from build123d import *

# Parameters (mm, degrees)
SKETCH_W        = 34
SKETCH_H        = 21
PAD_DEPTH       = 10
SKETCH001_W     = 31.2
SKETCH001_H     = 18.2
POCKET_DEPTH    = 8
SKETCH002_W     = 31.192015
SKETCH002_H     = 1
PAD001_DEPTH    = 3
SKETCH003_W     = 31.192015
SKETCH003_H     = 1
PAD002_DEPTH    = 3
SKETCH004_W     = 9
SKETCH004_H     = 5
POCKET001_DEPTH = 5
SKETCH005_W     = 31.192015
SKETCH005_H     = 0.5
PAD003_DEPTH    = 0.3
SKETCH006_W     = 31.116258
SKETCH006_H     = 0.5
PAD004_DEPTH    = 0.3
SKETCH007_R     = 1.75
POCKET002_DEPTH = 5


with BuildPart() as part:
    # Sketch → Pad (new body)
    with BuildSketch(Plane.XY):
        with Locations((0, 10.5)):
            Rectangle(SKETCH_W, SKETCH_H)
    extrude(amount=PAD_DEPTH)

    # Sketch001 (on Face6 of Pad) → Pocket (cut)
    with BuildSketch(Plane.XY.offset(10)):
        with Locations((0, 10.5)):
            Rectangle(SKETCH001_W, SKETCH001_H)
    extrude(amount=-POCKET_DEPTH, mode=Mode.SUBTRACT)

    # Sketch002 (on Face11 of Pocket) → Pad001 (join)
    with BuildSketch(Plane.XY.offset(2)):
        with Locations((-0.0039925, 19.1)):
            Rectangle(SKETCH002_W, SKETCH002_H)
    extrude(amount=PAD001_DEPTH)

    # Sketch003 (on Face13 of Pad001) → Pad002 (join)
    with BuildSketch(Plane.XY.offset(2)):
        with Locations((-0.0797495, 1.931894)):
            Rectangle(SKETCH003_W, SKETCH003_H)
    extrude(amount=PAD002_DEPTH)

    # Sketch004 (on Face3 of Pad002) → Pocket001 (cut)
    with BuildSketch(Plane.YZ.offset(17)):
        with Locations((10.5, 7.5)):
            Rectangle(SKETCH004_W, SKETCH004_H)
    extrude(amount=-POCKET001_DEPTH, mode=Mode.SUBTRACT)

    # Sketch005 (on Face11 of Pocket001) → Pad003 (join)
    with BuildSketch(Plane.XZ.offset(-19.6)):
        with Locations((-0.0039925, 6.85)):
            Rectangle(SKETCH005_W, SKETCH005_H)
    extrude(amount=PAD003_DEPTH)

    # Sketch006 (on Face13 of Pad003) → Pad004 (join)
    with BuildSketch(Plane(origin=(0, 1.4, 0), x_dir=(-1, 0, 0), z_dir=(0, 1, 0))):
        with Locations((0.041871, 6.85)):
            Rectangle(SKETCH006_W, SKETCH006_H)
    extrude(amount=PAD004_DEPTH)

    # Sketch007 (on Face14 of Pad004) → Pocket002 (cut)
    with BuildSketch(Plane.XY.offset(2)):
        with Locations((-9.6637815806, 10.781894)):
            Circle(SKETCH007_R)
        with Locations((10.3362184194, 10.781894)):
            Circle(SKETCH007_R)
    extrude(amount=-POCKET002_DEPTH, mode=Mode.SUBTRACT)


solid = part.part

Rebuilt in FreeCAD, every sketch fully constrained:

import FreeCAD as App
import Part
import Sketcher
from FreeCAD import Vector
Q = App.Units.Quantity

doc = App.newDocument("Part")
body = doc.addObject("PartDesign::Body", "Body")

sketch1 = body.newObject("Sketcher::SketchObject", "Sketch")
sketch1.AttachmentSupport = (doc.getObject("XY_Plane"), [""])
sketch1.MapMode = "FlatFace"
sketch1.addGeometry([
    Part.LineSegment(Vector(-17, 21, 0), Vector(-17, 0, 0)),
    Part.LineSegment(Vector(-17, 0, 0), Vector(17, 0, 0)),
    Part.LineSegment(Vector(17, 0, 0), Vector(17, 21, 0)),
    Part.LineSegment(Vector(17, 21, 0), Vector(-17, 21, 0)),
], False)
sketch1.addConstraint([
    Sketcher.Constraint("Coincident", 0, 2, 1, 1),
    Sketcher.Constraint("Coincident", 1, 2, 2, 1),
    Sketcher.Constraint("Coincident", 2, 2, 3, 1),
    Sketcher.Constraint("Coincident", 3, 2, 0, 1),
    Sketcher.Constraint("Vertical", 0),
    Sketcher.Constraint("Horizontal", 1),
    Sketcher.Constraint("Vertical", 2),
    Sketcher.Constraint("Horizontal", 3),
    Sketcher.Constraint("Symmetric", 0, 2, 1, 2, -1, 1),
    Sketcher.Constraint("DistanceX", 1, 1, 1, 2, Q("34 mm")),
    Sketcher.Constraint("DistanceY", 0, 2, 0, 1, Q("21 mm")),
])
pad1 = body.newObject("PartDesign::Pad", "Pad")
pad1.Profile = sketch1
pad1.Length = 10

sketch2 = body.newObject("Sketcher::SketchObject", "Sketch001")
sketch2.AttachmentSupport = (doc.getObject("XY_Plane"), [""])
sketch2.MapMode = "FlatFace"
sketch2.AttachmentOffset = App.Placement(Vector(0, 0, 10), App.Rotation())
sketch2.addGeometry([
    Part.LineSegment(Vector(-16, 20, 0), Vector(-16, 1, 0)),
    Part.LineSegment(Vector(-16, 1, 0), Vector(16, 1, 0)),
    Part.LineSegment(Vector(16, 1, 0), Vector(16, 20, 0)),
    Part.LineSegment(Vector(16, 20, 0), Vector(-16, 20, 0)),
], False)
sketch2.addConstraint([
    Sketcher.Constraint("Coincident", 0, 2, 1, 1),
    Sketcher.Constraint("Coincident", 1, 2, 2, 1),
    Sketcher.Constraint("Coincident", 2, 2, 3, 1),
    Sketcher.Constraint("Coincident", 3, 2, 0, 1),
    Sketcher.Constraint("Vertical", 0),
    Sketcher.Constraint("Horizontal", 1),
    Sketcher.Constraint("Vertical", 2),
    Sketcher.Constraint("Horizontal", 3),
    Sketcher.Constraint("DistanceX", 1, 1, 1, 2, Q("31.2 mm")),
    Sketcher.Constraint("DistanceY", 0, 2, 0, 1, Q("18.2 mm")),
    Sketcher.Constraint("DistanceX", 0, 2, -1, 1, Q("15.6 mm")),
    Sketcher.Constraint("DistanceY", -1, 1, 0, 2, Q("1.4 mm")),
])
pocket1 = body.newObject("PartDesign::Pocket", "Pocket")
pocket1.Profile = sketch2
pocket1.Length = 8

sketch3 = body.newObject("Sketcher::SketchObject", "Sketch002")
sketch3.AttachmentSupport = (doc.getObject("XY_Plane"), [""])
sketch3.MapMode = "FlatFace"
sketch3.AttachmentOffset = App.Placement(Vector(0, 0, 2), App.Rotation())
sketch3.addGeometry([
    Part.LineSegment(Vector(-15.6, 19.6, 0), Vector(-15.6, 18.6, 0)),
    Part.LineSegment(Vector(-15.6, 18.6, 0), Vector(15.6, 18.6, 0)),
    Part.LineSegment(Vector(15.6, 18.6, 0), Vector(15.6, 19.6, 0)),
    Part.LineSegment(Vector(15.6, 19.6, 0), Vector(-15.6, 19.6, 0)),
], False)
sketch3.addConstraint([
    Sketcher.Constraint("Coincident", 0, 2, 1, 1),
    Sketcher.Constraint("Coincident", 1, 2, 2, 1),
    Sketcher.Constraint("Coincident", 2, 2, 3, 1),
    Sketcher.Constraint("Coincident", 3, 2, 0, 1),
    Sketcher.Constraint("Vertical", 0),
    Sketcher.Constraint("Horizontal", 1),
    Sketcher.Constraint("Vertical", 2),
    Sketcher.Constraint("Horizontal", 3),
    Sketcher.Constraint("DistanceY", 0, 2, 0, 1, Q("1 mm")),
    Sketcher.Constraint("DistanceX", 0, 2, -1, 1, Q("15.6 mm")),
    Sketcher.Constraint("DistanceY", -1, 1, 0, 2, Q("18.6 mm")),
    Sketcher.Constraint("DistanceX", 1, 1, 1, 2, Q("31.192015 mm")),
])
pad2 = body.newObject("PartDesign::Pad", "Pad001")
pad2.Profile = sketch3
pad2.Length = 3

sketch4 = body.newObject("Sketcher::SketchObject", "Sketch003")
sketch4.AttachmentSupport = (doc.getObject("XY_Plane"), [""])
sketch4.MapMode = "FlatFace"
sketch4.AttachmentOffset = App.Placement(Vector(0, 0, 2), App.Rotation())
sketch4.addGeometry([
    Part.LineSegment(Vector(-15.7, 2.4, 0), Vector(-15.7, 1.4, 0)),
    Part.LineSegment(Vector(-15.7, 1.4, 0), Vector(15.5, 1.4, 0)),
    Part.LineSegment(Vector(15.5, 1.4, 0), Vector(15.5, 2.4, 0)),
    Part.LineSegment(Vector(15.5, 2.4, 0), Vector(-15.7, 2.4, 0)),
], False)
sketch4.addConstraint([
    Sketcher.Constraint("Coincident", 0, 2, 1, 1),
    Sketcher.Constraint("Coincident", 1, 2, 2, 1),
    Sketcher.Constraint("Coincident", 2, 2, 3, 1),
    Sketcher.Constraint("Coincident", 3, 2, 0, 1),
    Sketcher.Constraint("Vertical", 0),
    Sketcher.Constraint("Horizontal", 1),
    Sketcher.Constraint("Vertical", 2),
    Sketcher.Constraint("Horizontal", 3),
    Sketcher.Constraint("DistanceY", 0, 2, 0, 1, Q("1 mm")),
    Sketcher.Constraint("DistanceX", 1, 1, 1, 2, Q("31.192015 mm")),
    Sketcher.Constraint("DistanceX", 0, 2, -1, 1, Q("15.675757 mm")),
    Sketcher.Constraint("DistanceY", -1, 1, 0, 2, Q("1.431894 mm")),
])
pad3 = body.newObject("PartDesign::Pad", "Pad002")
pad3.Profile = sketch4
pad3.Length = 3

sketch5 = body.newObject("Sketcher::SketchObject", "Sketch004")
sketch5.AttachmentSupport = (doc.getObject("YZ_Plane"), [""])
sketch5.MapMode = "FlatFace"
sketch5.AttachmentOffset = App.Placement(Vector(0, 0, 17), App.Rotation())
sketch5.addGeometry([
    Part.LineSegment(Vector(6, 10, 0), Vector(6, 5, 0)),
    Part.LineSegment(Vector(6, 5, 0), Vector(15, 5, 0)),
    Part.LineSegment(Vector(15, 5, 0), Vector(15, 10, 0)),
    Part.LineSegment(Vector(15, 10, 0), Vector(6, 10, 0)),
], False)
sketch5.addConstraint([
    Sketcher.Constraint("Coincident", 0, 2, 1, 1),
    Sketcher.Constraint("Coincident", 1, 2, 2, 1),
    Sketcher.Constraint("Coincident", 2, 2, 3, 1),
    Sketcher.Constraint("Coincident", 3, 2, 0, 1),
    Sketcher.Constraint("Vertical", 0),
    Sketcher.Constraint("Horizontal", 1),
    Sketcher.Constraint("Vertical", 2),
    Sketcher.Constraint("Horizontal", 3),
    Sketcher.Constraint("DistanceX", 1, 1, 1, 2, Q("9 mm")),
    Sketcher.Constraint("DistanceY", 0, 2, 0, 1, Q("5 mm")),
    Sketcher.Constraint("DistanceX", -1, 1, 0, 2, Q("6 mm")),
    Sketcher.Constraint("DistanceY", -1, 1, 0, 2, Q("5 mm")),
])
pocket2 = body.newObject("PartDesign::Pocket", "Pocket001")
pocket2.Profile = sketch5
pocket2.Length = 5

sketch6 = body.newObject("Sketcher::SketchObject", "Sketch005")
sketch6.AttachmentSupport = (doc.getObject("XZ_Plane"), [""])
sketch6.MapMode = "FlatFace"
sketch6.AttachmentOffset = App.Placement(Vector(0, 0, -19.6), App.Rotation())
sketch6.addGeometry([
    Part.LineSegment(Vector(-15.6, 7.1, 0), Vector(-15.6, 6.6, 0)),
    Part.LineSegment(Vector(-15.6, 6.6, 0), Vector(15.6, 6.6, 0)),
    Part.LineSegment(Vector(15.6, 6.6, 0), Vector(15.6, 7.1, 0)),
    Part.LineSegment(Vector(15.6, 7.1, 0), Vector(-15.6, 7.1, 0)),
], False)
sketch6.addConstraint([
    Sketcher.Constraint("Coincident", 0, 2, 1, 1),
    Sketcher.Constraint("Coincident", 1, 2, 2, 1),
    Sketcher.Constraint("Coincident", 2, 2, 3, 1),
    Sketcher.Constraint("Coincident", 3, 2, 0, 1),
    Sketcher.Constraint("Vertical", 0),
    Sketcher.Constraint("Horizontal", 1),
    Sketcher.Constraint("Vertical", 2),
    Sketcher.Constraint("Horizontal", 3),
    Sketcher.Constraint("DistanceY", 0, 2, 0, 1, Q("0.5 mm")),
    Sketcher.Constraint("DistanceX", 0, 2, -1, 1, Q("15.6 mm")),
    Sketcher.Constraint("DistanceY", -1, 1, 0, 2, Q("6.6 mm")),
    Sketcher.Constraint("DistanceX", 1, 1, 1, 2, Q("31.192015 mm")),
])
pad4 = body.newObject("PartDesign::Pad", "Pad003")
pad4.Profile = sketch6
pad4.Length = 0.3

sketch7 = body.newObject("Sketcher::SketchObject", "Sketch006")
sketch7.AttachmentSupport = (doc.getObject("XZ_Plane"), [""])
sketch7.MapMode = "FlatFace"
sketch7.AttachmentOffset = App.Placement(Vector(0, 0, -1.4), App.Rotation())
sketch7.addGeometry([
    Part.LineSegment(Vector(15.5, 7.1, 0), Vector(15.5, 6.6, 0)),
    Part.LineSegment(Vector(15.5, 6.6, 0), Vector(-15.6, 6.6, 0)),
    Part.LineSegment(Vector(-15.6, 6.6, 0), Vector(-15.6, 7.1, 0)),
    Part.LineSegment(Vector(-15.6, 7.1, 0), Vector(15.5, 7.1, 0)),
], False)
sketch7.addConstraint([
    Sketcher.Constraint("Coincident", 0, 2, 1, 1),
    Sketcher.Constraint("Coincident", 1, 2, 2, 1),
    Sketcher.Constraint("Coincident", 2, 2, 3, 1),
    Sketcher.Constraint("Coincident", 3, 2, 0, 1),
    Sketcher.Constraint("Vertical", 0),
    Sketcher.Constraint("Horizontal", 1),
    Sketcher.Constraint("Vertical", 2),
    Sketcher.Constraint("Horizontal", 3),
    Sketcher.Constraint("DistanceY", 0, 2, 0, 1, Q("0.5 mm")),
    Sketcher.Constraint("DistanceY", -1, 1, 0, 2, Q("6.6 mm")),
    Sketcher.Constraint("DistanceX", 1, 2, -1, 1, Q("15.6 mm")),
    Sketcher.Constraint("DistanceX", 1, 2, 1, 1, Q("31.116258 mm")),
])
pad5 = body.newObject("PartDesign::Pad", "Pad004")
pad5.Profile = sketch7
pad5.Length = 0.3
pad5.Reversed = True

sketch8 = body.newObject("Sketcher::SketchObject", "Sketch007")
sketch8.AttachmentSupport = (doc.getObject("XY_Plane"), [""])
sketch8.MapMode = "FlatFace"
sketch8.AttachmentOffset = App.Placement(Vector(0, 0, 2), App.Rotation())
sketch8.addGeometry([
    Part.Circle(Vector(-9.7, 10.8, 0), Vector(0, 0, 1), 1.8),
    Part.Circle(Vector(10.3, 10.8, 0), Vector(0, 0, 1), 1.8),
], False)
sketch8.addConstraint([
    Sketcher.Constraint("Equal", 0, 1),
    Sketcher.Constraint("Horizontal", 0, 3, 1, 3),
    Sketcher.Constraint("Diameter", 0, Q("3.5 mm")),
    Sketcher.Constraint("DistanceX", 0, 3, 1, 3, Q("20 mm")),
    Sketcher.Constraint("DistanceX", 0, 3, -1, 1, Q("9.663782 mm")),
    Sketcher.Constraint("DistanceY", -1, 1, 0, 3, Q("10.781894 mm")),
])
pocket3 = body.newObject("PartDesign::Pocket", "Pocket002")
pocket3.Profile = sketch8
pocket3.Length = 5

doc.recompute()
